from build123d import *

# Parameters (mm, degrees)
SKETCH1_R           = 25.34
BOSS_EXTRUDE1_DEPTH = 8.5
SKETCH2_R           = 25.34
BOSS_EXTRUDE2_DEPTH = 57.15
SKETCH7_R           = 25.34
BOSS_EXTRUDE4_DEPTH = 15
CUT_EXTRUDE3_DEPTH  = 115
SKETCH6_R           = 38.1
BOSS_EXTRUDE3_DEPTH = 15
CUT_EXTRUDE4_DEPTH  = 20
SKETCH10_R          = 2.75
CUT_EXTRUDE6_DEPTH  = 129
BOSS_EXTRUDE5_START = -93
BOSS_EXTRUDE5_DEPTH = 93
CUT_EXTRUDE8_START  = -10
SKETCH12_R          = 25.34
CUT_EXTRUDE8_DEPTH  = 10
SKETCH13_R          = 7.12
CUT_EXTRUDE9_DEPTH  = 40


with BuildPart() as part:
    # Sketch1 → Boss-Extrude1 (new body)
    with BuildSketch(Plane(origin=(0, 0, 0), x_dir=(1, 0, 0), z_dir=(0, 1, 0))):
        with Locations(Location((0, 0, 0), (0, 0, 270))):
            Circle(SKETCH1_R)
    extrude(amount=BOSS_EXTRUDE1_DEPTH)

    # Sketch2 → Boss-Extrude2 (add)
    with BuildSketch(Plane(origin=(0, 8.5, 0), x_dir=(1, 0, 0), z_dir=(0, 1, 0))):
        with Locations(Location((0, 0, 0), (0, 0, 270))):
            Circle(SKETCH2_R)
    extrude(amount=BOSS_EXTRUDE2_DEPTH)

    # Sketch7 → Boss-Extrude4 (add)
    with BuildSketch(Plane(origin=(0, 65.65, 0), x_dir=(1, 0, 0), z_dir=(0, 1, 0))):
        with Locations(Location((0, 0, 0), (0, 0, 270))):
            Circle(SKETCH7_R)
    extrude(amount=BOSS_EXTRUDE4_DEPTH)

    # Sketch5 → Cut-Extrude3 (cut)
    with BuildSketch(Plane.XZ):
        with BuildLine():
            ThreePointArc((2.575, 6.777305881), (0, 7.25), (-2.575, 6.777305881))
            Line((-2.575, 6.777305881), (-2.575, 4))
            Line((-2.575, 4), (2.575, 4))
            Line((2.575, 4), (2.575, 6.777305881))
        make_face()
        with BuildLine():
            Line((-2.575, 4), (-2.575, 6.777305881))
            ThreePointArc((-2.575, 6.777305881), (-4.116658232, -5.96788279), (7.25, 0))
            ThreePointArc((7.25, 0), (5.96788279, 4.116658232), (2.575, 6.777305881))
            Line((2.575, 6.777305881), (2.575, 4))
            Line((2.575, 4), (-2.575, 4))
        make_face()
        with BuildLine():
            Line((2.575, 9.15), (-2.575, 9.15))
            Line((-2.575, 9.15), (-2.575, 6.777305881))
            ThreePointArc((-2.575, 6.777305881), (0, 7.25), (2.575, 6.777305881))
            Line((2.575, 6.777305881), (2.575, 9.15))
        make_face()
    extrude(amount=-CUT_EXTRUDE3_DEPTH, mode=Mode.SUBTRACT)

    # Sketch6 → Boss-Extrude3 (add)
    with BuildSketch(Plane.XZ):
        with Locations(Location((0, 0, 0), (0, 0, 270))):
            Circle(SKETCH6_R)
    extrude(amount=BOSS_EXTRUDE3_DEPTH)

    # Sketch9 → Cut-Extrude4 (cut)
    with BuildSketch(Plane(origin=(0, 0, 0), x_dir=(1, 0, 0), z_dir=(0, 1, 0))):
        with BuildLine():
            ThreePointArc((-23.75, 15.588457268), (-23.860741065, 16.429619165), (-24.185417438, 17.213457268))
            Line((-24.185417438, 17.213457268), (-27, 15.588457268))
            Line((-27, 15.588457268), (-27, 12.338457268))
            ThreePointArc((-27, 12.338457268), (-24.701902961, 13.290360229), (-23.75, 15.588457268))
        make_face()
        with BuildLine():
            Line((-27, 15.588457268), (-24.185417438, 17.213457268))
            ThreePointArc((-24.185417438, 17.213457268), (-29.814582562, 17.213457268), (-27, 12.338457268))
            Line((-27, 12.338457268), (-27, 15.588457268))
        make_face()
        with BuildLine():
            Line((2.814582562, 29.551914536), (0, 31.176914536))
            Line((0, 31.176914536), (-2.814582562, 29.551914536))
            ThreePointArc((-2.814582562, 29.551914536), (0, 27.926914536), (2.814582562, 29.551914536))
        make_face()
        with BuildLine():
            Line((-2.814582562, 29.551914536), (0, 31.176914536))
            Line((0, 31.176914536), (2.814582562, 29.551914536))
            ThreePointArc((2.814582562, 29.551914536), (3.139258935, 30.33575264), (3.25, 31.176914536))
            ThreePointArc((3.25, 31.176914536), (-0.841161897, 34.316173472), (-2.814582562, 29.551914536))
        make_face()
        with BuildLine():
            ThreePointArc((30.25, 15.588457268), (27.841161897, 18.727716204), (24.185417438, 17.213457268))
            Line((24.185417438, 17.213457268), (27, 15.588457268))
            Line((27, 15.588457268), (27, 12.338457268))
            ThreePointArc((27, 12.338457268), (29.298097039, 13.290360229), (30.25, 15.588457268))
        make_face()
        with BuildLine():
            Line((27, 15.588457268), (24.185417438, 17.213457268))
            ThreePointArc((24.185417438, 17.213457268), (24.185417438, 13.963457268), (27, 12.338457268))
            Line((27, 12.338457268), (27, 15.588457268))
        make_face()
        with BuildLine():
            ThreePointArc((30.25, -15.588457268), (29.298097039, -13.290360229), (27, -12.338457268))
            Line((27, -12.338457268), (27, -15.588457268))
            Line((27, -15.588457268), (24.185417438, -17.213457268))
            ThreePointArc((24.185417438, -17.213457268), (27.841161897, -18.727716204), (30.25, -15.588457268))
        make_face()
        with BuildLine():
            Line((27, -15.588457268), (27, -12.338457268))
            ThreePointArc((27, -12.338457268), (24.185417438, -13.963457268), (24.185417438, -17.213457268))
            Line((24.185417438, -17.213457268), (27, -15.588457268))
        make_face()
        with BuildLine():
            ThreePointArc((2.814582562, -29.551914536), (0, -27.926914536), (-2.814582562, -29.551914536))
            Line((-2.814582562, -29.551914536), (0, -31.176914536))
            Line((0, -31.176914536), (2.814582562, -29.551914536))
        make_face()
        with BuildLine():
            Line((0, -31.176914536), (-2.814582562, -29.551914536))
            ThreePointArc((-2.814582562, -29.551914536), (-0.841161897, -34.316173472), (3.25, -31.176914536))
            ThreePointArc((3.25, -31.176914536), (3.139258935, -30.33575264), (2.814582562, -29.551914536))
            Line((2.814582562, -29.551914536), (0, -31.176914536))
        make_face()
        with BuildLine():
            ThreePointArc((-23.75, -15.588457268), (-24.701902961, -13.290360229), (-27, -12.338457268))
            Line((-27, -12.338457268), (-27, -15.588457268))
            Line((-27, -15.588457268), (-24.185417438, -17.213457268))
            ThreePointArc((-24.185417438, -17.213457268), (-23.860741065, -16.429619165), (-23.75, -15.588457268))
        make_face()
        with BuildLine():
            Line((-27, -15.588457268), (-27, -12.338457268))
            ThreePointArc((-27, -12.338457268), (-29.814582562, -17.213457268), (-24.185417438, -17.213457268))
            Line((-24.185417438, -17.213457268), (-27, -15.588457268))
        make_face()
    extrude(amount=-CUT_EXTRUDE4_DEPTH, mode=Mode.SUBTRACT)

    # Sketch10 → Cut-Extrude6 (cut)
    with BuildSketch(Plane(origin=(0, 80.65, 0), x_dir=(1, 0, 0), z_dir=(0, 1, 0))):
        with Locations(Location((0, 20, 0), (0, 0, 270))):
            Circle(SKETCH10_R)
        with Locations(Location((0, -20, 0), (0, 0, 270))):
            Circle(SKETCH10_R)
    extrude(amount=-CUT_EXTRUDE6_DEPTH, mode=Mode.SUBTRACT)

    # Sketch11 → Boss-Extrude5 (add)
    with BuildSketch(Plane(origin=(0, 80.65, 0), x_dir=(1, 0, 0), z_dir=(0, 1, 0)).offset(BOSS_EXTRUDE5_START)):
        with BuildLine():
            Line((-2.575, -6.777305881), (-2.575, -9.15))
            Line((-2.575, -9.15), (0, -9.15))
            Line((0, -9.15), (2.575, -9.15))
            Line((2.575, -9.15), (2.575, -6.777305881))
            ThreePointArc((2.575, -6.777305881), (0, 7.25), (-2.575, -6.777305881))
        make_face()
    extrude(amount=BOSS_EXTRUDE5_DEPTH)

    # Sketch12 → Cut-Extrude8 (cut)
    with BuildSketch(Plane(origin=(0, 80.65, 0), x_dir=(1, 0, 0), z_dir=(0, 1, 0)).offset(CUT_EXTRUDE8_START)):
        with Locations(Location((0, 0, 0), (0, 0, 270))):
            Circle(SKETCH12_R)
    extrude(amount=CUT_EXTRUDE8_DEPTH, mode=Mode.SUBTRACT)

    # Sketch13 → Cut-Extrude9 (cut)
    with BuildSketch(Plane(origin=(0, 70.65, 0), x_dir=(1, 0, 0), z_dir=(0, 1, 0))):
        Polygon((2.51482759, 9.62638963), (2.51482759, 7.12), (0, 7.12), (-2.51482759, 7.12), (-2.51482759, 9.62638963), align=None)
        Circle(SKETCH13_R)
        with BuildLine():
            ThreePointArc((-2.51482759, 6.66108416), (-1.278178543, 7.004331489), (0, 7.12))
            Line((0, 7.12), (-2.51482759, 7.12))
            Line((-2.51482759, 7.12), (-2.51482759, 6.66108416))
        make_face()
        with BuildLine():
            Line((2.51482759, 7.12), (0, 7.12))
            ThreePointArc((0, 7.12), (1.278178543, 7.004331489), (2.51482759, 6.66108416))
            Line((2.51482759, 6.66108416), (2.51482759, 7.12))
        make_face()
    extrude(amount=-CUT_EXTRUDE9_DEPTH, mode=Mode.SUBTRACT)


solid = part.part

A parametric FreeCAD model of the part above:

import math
import FreeCAD as App
import Part
import Sketcher

doc = App.newDocument("Part")
body = doc.addObject("PartDesign::Body", "Body")

# Sketch on XZ plane
sketch1 = body.newObject("Sketcher::SketchObject", "Sketch")
sketch1.AttachmentSupport = (doc.getObject("XZ_Plane"), [""])
sketch1.MapMode = "FlatFace"
sketch1.addGeometry(Part.Circle(App.Vector(0, 0, 0), App.Vector(0, 0, 1), 25), False)
sketch1.addConstraint([
    Sketcher.Constraint("Coincident", 0, 3, -1, 1),
    Sketcher.Constraint("Diameter", 0, 50.68),
])
pad1 = body.newObject("PartDesign::Pad", "Pad")
pad1.Profile = sketch1
pad1.Length = 8.5
pad1.Reversed = True

# Sketch on XZ plane
sketch2 = body.newObject("Sketcher::SketchObject", "Sketch001")
sketch2.AttachmentSupport = (doc.getObject("XZ_Plane"), [""])
sketch2.MapMode = "FlatFace"
sketch2.AttachmentOffset = App.Placement(App.Vector(0, 0, -8.5), App.Rotation())
sketch2.addGeometry(Part.Circle(App.Vector(0, 0, 0), App.Vector(0, 0, 1), 25), False)
sketch2.addConstraint([
    Sketcher.Constraint("Coincident", 0, 3, -1, 1),
    Sketcher.Constraint("Diameter", 0, 50.68),
])
pad2 = body.newObject("PartDesign::Pad", "Pad001")
pad2.Profile = sketch2
pad2.Length = 57.15
pad2.Reversed = True

# Sketch on XZ plane
sketch3 = body.newObject("Sketcher::SketchObject", "Sketch002")
sketch3.AttachmentSupport = (doc.getObject("XZ_Plane"), [""])
sketch3.MapMode = "FlatFace"
sketch3.AttachmentOffset = App.Placement(App.Vector(0, 0, -65.65), App.Rotation())
sketch3.addGeometry(Part.Circle(App.Vector(0, 0, 0), App.Vector(0, 0, 1), 25), False)
sketch3.addConstraint([
    Sketcher.Constraint("Coincident", 0, 3, -1, 1),
    Sketcher.Constraint("Diameter", 0, 50.68),
])
pad3 = body.newObject("PartDesign::Pad", "Pad002")
pad3.Profile = sketch3
pad3.Length = 15
pad3.Reversed = True

# Sketch on XZ plane
sketch4 = body.newObject("Sketcher::SketchObject", "Sketch003")
sketch4.AttachmentSupport = (doc.getObject("XZ_Plane"), [""])
sketch4.MapMode = "FlatFace"
sketch4.addGeometry([
    Part.ArcOfCircle(Part.Circle(App.Vector(0, 0, 0), App.Vector(0, 0, 1), 7.2), math.radians(111), math.radians(360)),  # 0
    Part.ArcOfCircle(Part.Circle(App.Vector(0, 0, 0), App.Vector(0, 0, 1), 7.3), math.radians(0), math.radians(69)),  # 1
    Part.LineSegment(App.Vector(2.6, 6.8, 0), App.Vector(2.6, 9.2, 0)),  # 2
    Part.LineSegment(App.Vector(2.6, 9.2, 0), App.Vector(-2.6, 9.2, 0)),  # 3
    Part.LineSegment(App.Vector(-2.6, 9.2, 0), App.Vector(-2.6, 6.8, 0)),  # 4
], False)
sketch4.addConstraint([
    Sketcher.Constraint("Tangent", 0, 2, 1, 1),
    Sketcher.Constraint("Coincident", 1, 2, 2, 1),
    Sketcher.Constraint("Coincident", 2, 2, 3, 1),
    Sketcher.Constraint("Coincident", 3, 2, 4, 1),
    Sketcher.Constraint("Coincident", 4, 2, 0, 1),
    Sketcher.Constraint("Vertical", 2),
    Sketcher.Constraint("Horizontal", 3),
    Sketcher.Constraint("Vertical", 4),
    Sketcher.Constraint("Coincident", 0, 3, -1, 1),
    Sketcher.Constraint("Equal", 0, 1),
    Sketcher.Constraint("PointOnObject", 0, 2, -1),
    Sketcher.Constraint("Horizontal", 1, 2, 4, 2),
    Sketcher.Constraint("Radius", 0, 7.25),
    Sketcher.Constraint("DistanceX", 3, 2, 3, 1, 5.15),
    Sketcher.Constraint("DistanceY", -1, 1, 2, 2, 9.15),
])
pocket1 = body.newObject("PartDesign::Pocket", "Pocket")
pocket1.Profile = sketch4
pocket1.Length = 115

# Sketch on XZ plane
sketch5 = body.newObject("Sketcher::SketchObject", "Sketch004")
sketch5.AttachmentSupport = (doc.getObject("XZ_Plane"), [""])
sketch5.MapMode = "FlatFace"
sketch5.addGeometry(Part.Circle(App.Vector(0, 0, 0), App.Vector(0, 0, 1), 38), False)
sketch5.addConstraint([
    Sketcher.Constraint("Coincident", 0, 3, -1, 1),
    Sketcher.Constraint("Diameter", 0, 76.2),
])
pad4 = body.newObject("PartDesign::Pad", "Pad003")
pad4.Profile = sketch5
pad4.Length = 15

# Sketch on XZ plane
sketch6 = body.newObject("Sketcher::SketchObject", "Sketch005")
sketch6.AttachmentSupport = (doc.getObject("XZ_Plane"), [""])
sketch6.MapMode = "FlatFace"
sketch6.addGeometry([
    Part.ArcOfCircle(Part.Circle(App.Vector(-27, -15.6, 0), App.Vector(0, 0, 1), 3.3), math.radians(-30), math.radians(0)),  # 0
    Part.ArcOfCircle(Part.Circle(App.Vector(-27, -15.6, 0), App.Vector(0, 0, 1), 3.2), math.radians(90), math.radians(330)),  # 1
    Part.ArcOfCircle(Part.Circle(App.Vector(-27, -15.6, 0), App.Vector(0, 0, 1), 3.2), math.radians(0), math.radians(90)),  # 2
    Part.ArcOfCircle(Part.Circle(App.Vector(0, -31.2, 0), App.Vector(0, 0, 1), 3.2), math.radians(30), math.radians(150)),  # 3
    Part.ArcOfCircle(Part.Circle(App.Vector(0, -31.2, 0), App.Vector(0, 0, 1), 3.3), math.radians(0), math.radians(30)),  # 4
    Part.ArcOfCircle(Part.Circle(App.Vector(0, -31.2, 0), App.Vector(0, 0, 1), 3.2), math.radians(150), math.radians(360)),  # 5
    Part.ArcOfCircle(Part.Circle(App.Vector(27, -15.6, 0), App.Vector(0, 0, 1), 3.2), math.radians(-150), math.radians(0)),  # 6
    Part.ArcOfCircle(Part.Circle(App.Vector(27, -15.6, 0), App.Vector(0, 0, 1), 3.2), math.radians(90), math.radians(210)),  # 7
    Part.ArcOfCircle(Part.Circle(App.Vector(27, -15.6, 0), App.Vector(0, 0, 1), 3.2), math.radians(0), math.radians(90)),  # 8
    Part.ArcOfCircle(Part.Circle(App.Vector(27, 15.6, 0), App.Vector(0, 0, 1), 3.2), math.radians(-90), math.radians(0)),  # 9
    Part.ArcOfCircle(Part.Circle(App.Vector(27, 15.6, 0), App.Vector(0, 0, 1), 3.2), math.radians(150), math.radians(270)),  # 10
    Part.ArcOfCircle(Part.Circle(App.Vector(27, 15.6, 0), App.Vector(0, 0, 1), 3.2), math.radians(0), math.radians(150)),  # 11
    Part.ArcOfCircle(Part.Circle(App.Vector(0, 31.2, 0), App.Vector(0, 0, 1), 3.2), math.radians(-150), math.radians(-30)),  # 12
    Part.ArcOfCircle(Part.Circle(App.Vector(0, 31.2, 0), App.Vector(0, 0, 1), 3.2), math.radians(0), math.radians(210)),  # 13
    Part.ArcOfCircle(Part.Circle(App.Vector(0, 31.2, 0), App.Vector(0, 0, 1), 3.3), math.radians(-30), math.radians(0)),  # 14
    Part.ArcOfCircle(Part.Circle(App.Vector(-27, 15.6, 0), App.Vector(0, 0, 1), 3.2), math.radians(-90), math.radians(0)),  # 15
    Part.ArcOfCircle(Part.Circle(App.Vector(-27, 15.6, 0), App.Vector(0, 0, 1), 3.2), math.radians(30), math.radians(270)),  # 16
    Part.ArcOfCircle(Part.Circle(App.Vector(-27, 15.6, 0), App.Vector(0, 0, 1), 3.3), math.radians(0), math.radians(30)),  # 17
], False)
sketch6.addConstraint([
    Sketcher.Constraint("Tangent", 0, 1, 1, 2),
    Sketcher.Constraint("Tangent", 1, 1, 2, 2),
    Sketcher.Constraint("Tangent", 2, 1, 0, 2),
    Sketcher.Constraint("Tangent", 3, 1, 4, 2),
    Sketcher.Constraint("Tangent", 4, 1, 5, 2),
    Sketcher.Constraint("Tangent", 5, 1, 3, 2),
    Sketcher.Constraint("Tangent", 6, 1, 7, 2),
    Sketcher.Constraint("Tangent", 7, 1, 8, 2),
    Sketcher.Constraint("Tangent", 8, 1, 6, 2),
    Sketcher.Constraint("Tangent", 9, 1, 10, 2),
    Sketcher.Constraint("Tangent", 10, 1, 11, 2),
    Sketcher.Constraint("Tangent", 11, 1, 9, 2),
    Sketcher.Constraint("Tangent", 12, 1, 13, 2),
    Sketcher.Constraint("Tangent", 13, 1, 14, 2),
    Sketcher.Constraint("Tangent", 14, 1, 12, 2),
    Sketcher.Constraint("Tangent", 15, 1, 16, 2),
    Sketcher.Constraint("Tangent", 16, 1, 17, 2),
    Sketcher.Constraint("Tangent", 17, 1, 15, 2),
    Sketcher.Constraint("Equal", 2, 3),
    Sketcher.Constraint("Equal", 5, 6),
    Sketcher.Constraint("Equal", 8, 9),
    Sketcher.Constraint("Equal", 11, 12),
    Sketcher.Constraint("Equal", 14, 15),
    Sketcher.Constraint("Symmetric", 0, 3, 9, 3, -1, 1),
    Sketcher.Constraint("Symmetric", 3, 3, 12, 3, -1, 1),
    Sketcher.Constraint("Symmetric", 6, 3, 15, 3, -1, 1),
    Sketcher.Constraint("Symmetric", 0, 3, 6, 3, -2),
    Sketcher.Constraint("Symmetric", 3, 1, 5, 1, -2),
    Sketcher.Constraint("Horizontal", 8, 3, 2, 1),
    Sketcher.Constraint("Horizontal", 5, 3, 4, 1),
    Sketcher.Constraint("Horizontal", 0, 1, 6, 1),
    Sketcher.Constraint("Horizontal", 2, 1, 8, 1),
    Sketcher.Constraint("Horizontal", 17, 3, 11, 1),
    Sketcher.Constraint("Horizontal", 14, 3, 13, 1),
    Sketcher.Constraint("Horizontal", 12, 1, 14, 1),
    Sketcher.Constraint("Horizontal", 10, 1, 16, 1),
    Sketcher.Constraint("Horizontal", 11, 1, 17, 1),
    Sketcher.Constraint("Vertical", 17, 3, 1, 1),
    Sketcher.Constraint("Vertical", 11, 3, 7, 1),
    Sketcher.Constraint("Vertical", 7, 1, 9, 1),
    Sketcher.Constraint("Vertical", 6, 1, 10, 1),
    Sketcher.Constraint("Vertical", 5, 1, 12, 1),
    Sketcher.Constraint("Vertical", 1, 1, 15, 1),
    Sketcher.Constraint("Radius", 0, 3.25),
    Sketcher.Constraint("DistanceX", 0, 3, -1, 1, 27.0),
    Sketcher.Constraint("DistanceY", 0, 1, 1, 3, 1.625),
    Sketcher.Constraint("DistanceY", 3, 3, 3, 1, 1.625),
    Sketcher.Constraint("DistanceY", 3, 3, 9, 3, 46.765372),
    Sketcher.Constraint("DistanceY", 0, 3, -1, 1, 15.588457),
])
pocket2 = body.newObject("PartDesign::Pocket", "Pocket001")
pocket2.Profile = sketch6
pocket2.Length = 20
pocket2.Reversed = True

# Sketch on XZ plane
sketch7 = body.newObject("Sketcher::SketchObject", "Sketch006")
sketch7.AttachmentSupport = (doc.getObject("XZ_Plane"), [""])
sketch7.MapMode = "FlatFace"
sketch7.AttachmentOffset = App.Placement(App.Vector(0, 0, -80.65), App.Rotation())
sketch7.addGeometry([
    Part.Circle(App.Vector(0, -20, 0), App.Vector(0, 0, 1), 2.8),
    Part.Circle(App.Vector(0, 20, 0), App.Vector(0, 0, 1), 2.8),
], False)
sketch7.addConstraint([
    Sketcher.Constraint("Equal", 0, 1),
    Sketcher.Constraint("Symmetric", 0, 3, 1, 3, -1, 1),
    Sketcher.Constraint("PointOnObject", 0, 3, -2),
    Sketcher.Constraint("Diameter", 0, 5.5),
    Sketcher.Constraint("DistanceY", 0, 3, -1, 1, 20.0),
])
pocket3 = body.newObject("PartDesign::Pocket", "Pocket002")
pocket3.Profile = sketch7
pocket3.Length = 129
pocket3.Reversed = True

# Sketch on XZ plane
sketch8 = body.newObject("Sketcher::SketchObject", "Sketch007")
sketch8.AttachmentSupport = (doc.getObject("XZ_Plane"), [""])
sketch8.MapMode = "FlatFace"
sketch8.AttachmentOffset = App.Placement(App.Vector(0, 0, 12.35), App.Rotation())
sketch8.addGeometry([
    Part.LineSegment(App.Vector(-2.6, 6.8, 0), App.Vector(-2.6, 9.2, 0)),
    Part.LineSegment(App.Vector(-2.6, 9.2, 0), App.Vector(2.6, 9.2, 0)),
    Part.LineSegment(App.Vector(2.6, 9.2, 0), App.Vector(2.6, 6.8, 0)),
    Part.ArcOfCircle(Part.Circle(App.Vector(0, 0, 0), App.Vector(0, 0, 1), 7.2), math.radians(111), math.radians(429)),
], False)
sketch8.addConstraint([
    Sketcher.Constraint("Coincident", 0, 2, 1, 1),
    Sketcher.Constraint("Coincident", 1, 2, 2, 1),
    Sketcher.Constraint("Coincident", 2, 2, 3, 2),
    Sketcher.Constraint("Coincident", 3, 1, 0, 1),
    Sketcher.Constraint("Vertical", 0),
    Sketcher.Constraint("Horizontal", 1),
    Sketcher.Constraint("Vertical", 2),
    Sketcher.Constraint("Coincident", 3, 3, -1, 1),
    Sketcher.Constraint("Horizontal", 2, 2, 3, 1),
    Sketcher.Constraint("Radius", 3, 7.25),
    Sketcher.Constraint("DistanceX", 1, 1, 1, 2, 5.15),
    Sketcher.Constraint("DistanceY", -1, 1, 0, 2, 9.15),
])
pad5 = body.newObject("PartDesign::Pad", "Pad004")
pad5.Profile = sketch8
pad5.Length = 93
pad5.Reversed = True

# Sketch on XZ plane
sketch9 = body.newObject("Sketcher::SketchObject", "Sketch008")
sketch9.AttachmentSupport = (doc.getObject("XZ_Plane"), [""])
sketch9.MapMode = "FlatFace"
sketch9.AttachmentOffset = App.Placement(App.Vector(0, 0, -70.65), App.Rotation())
sketch9.addGeometry(Part.Circle(App.Vector(0, 0, 0), App.Vector(0, 0, 1), 25), False)
sketch9.addConstraint([
    Sketcher.Constraint("Coincident", 0, 3, -1, 1),
    Sketcher.Constraint("Diameter", 0, 50.68),
])
pocket4 = body.newObject("PartDesign::Pocket", "Pocket003")
pocket4.Profile = sketch9
pocket4.Length = 10

# Sketch on XZ plane
sketch10 = body.newObject("Sketcher::SketchObject", "Sketch009")
sketch10.AttachmentSupport = (doc.getObject("XZ_Plane"), [""])
sketch10.MapMode = "FlatFace"
sketch10.AttachmentOffset = App.Placement(App.Vector(0, 0, -70.65), App.Rotation())
sketch10.addGeometry([
    Part.LineSegment(App.Vector(2.5, -6.7, 0), App.Vector(2.5, -9.6, 0)),
    Part.LineSegment(App.Vector(2.5, -9.6, 0), App.Vector(-2.5, -9.6, 0)),
    Part.LineSegment(App.Vector(-2.5, -9.6, 0), App.Vector(-2.5, -6.7, 0)),
    Part.ArcOfCircle(Part.Circle(App.Vector(0, 0, 0), App.Vector(0, 0, 1), 7.1), math.radians(-69), math.radians(249)),
], False)
sketch10.addConstraint([
    Sketcher.Constraint("Coincident", 0, 2, 1, 1),
    Sketcher.Constraint("Coincident", 1, 2, 2, 1),
    Sketcher.Constraint("Coincident", 2, 2, 3, 2),
    Sketcher.Constraint("Coincident", 3, 1, 0, 1),
    Sketcher.Constraint("Vertical", 0),
    Sketcher.Constraint("Horizontal", 1),
    Sketcher.Constraint("Vertical", 2),
    Sketcher.Constraint("Coincident", 3, 3, -1, 1),
    Sketcher.Constraint("Horizontal", 2, 2, 3, 1),
    Sketcher.Constraint("Radius", 3, 7.12),
    Sketcher.Constraint("DistanceX", 1, 2, 1, 1, 5.029655),
    Sketcher.Constraint("DistanceY", 0, 2, 0, 1, 2.965305),
])
pocket5 = body.newObject("PartDesign::Pocket", "Pocket004")
pocket5.Profile = sketch10
pocket5.Length = 40
pocket5.Reversed = True

doc.recompute()
